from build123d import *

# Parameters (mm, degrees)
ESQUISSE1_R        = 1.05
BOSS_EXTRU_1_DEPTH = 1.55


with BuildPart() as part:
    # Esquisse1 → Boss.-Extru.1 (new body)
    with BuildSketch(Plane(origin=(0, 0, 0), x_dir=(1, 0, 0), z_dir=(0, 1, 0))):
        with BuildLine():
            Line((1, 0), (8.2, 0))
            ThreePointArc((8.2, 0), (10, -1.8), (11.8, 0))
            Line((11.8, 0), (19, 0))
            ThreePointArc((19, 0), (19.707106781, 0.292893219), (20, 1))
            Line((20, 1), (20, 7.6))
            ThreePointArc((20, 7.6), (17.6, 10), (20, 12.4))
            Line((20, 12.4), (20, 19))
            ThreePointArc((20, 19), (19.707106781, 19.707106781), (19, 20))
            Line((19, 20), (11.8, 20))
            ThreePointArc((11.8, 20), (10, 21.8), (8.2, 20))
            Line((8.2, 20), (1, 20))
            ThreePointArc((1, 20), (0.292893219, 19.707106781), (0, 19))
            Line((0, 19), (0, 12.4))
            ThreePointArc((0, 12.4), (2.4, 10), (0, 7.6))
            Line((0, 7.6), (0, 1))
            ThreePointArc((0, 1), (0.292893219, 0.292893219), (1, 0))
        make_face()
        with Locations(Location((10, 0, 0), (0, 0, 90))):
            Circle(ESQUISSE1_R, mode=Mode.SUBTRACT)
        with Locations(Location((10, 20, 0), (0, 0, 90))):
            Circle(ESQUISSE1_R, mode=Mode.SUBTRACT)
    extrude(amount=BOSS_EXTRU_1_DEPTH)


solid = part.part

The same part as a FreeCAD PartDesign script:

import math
import FreeCAD as App
import Part
import Sketcher
Q = App.Units.Quantity

doc = App.newDocument("Part")
body = doc.addObject("PartDesign::Body", "Body")

# Sketch on XZ plane
sketch1 = body.newObject("Sketcher::SketchObject", "Sketch")
sketch1.AttachmentSupport = (doc.getObject("XZ_Plane"), [""])
sketch1.MapMode = "FlatFace"
sketch1.addGeometry([
    Part.LineSegment(App.Vector(1, 0, 0), App.Vector(8.2, 0, 0)),  # 0
    Part.ArcOfCircle(Part.Circle(App.Vector(10, 0, 0), App.Vector(0, 0, 1), 1.8), math.radians(0), math.radians(180)),  # 1
    Part.LineSegment(App.Vector(11.8, 0, 0), App.Vector(19, 0, 0)),  # 2
    Part.ArcOfCircle(Part.Circle(App.Vector(19, -1, 0), App.Vector(0, 0, 1), 1), math.radians(0), math.radians(90)),  # 3
    Part.LineSegment(App.Vector(20, -1, 0), App.Vector(20, -7.6, 0)),  # 4
    Part.ArcOfCircle(Part.Circle(App.Vector(20, -10, 0), App.Vector(0, 0, 1), 2.4), math.radians(90), math.radians(270)),  # 5
    Part.LineSegment(App.Vector(20, -12.4, 0), App.Vector(20, -19, 0)),  # 6
    Part.ArcOfCircle(Part.Circle(App.Vector(19, -19, 0), App.Vector(0, 0, 1), 1), math.radians(-90), math.radians(0)),  # 7
    Part.LineSegment(App.Vector(19, -20, 0), App.Vector(11.8, -20, 0)),  # 8
    Part.ArcOfCircle(Part.Circle(App.Vector(10, -20, 0), App.Vector(0, 0, 1), 1.8), math.radians(180), math.radians(360)),  # 9
    Part.LineSegment(App.Vector(8.2, -20, 0), App.Vector(1, -20, 0)),  # 10
    Part.ArcOfCircle(Part.Circle(App.Vector(1, -19, 0), App.Vector(0, 0, 1), 1), math.radians(-180), math.radians(-90)),  # 11
    Part.LineSegment(App.Vector(0, -19, 0), App.Vector(0, -12.4, 0)),  # 12
    Part.ArcOfCircle(Part.Circle(App.Vector(0, -10, 0), App.Vector(0, 0, 1), 2.4), math.radians(-90), math.radians(90)),  # 13
    Part.LineSegment(App.Vector(0, -7.6, 0), App.Vector(0, -1, 0)),  # 14
    Part.ArcOfCircle(Part.Circle(App.Vector(1, -1, 0), App.Vector(0, 0, 1), 1), math.radians(90), math.radians(180)),  # 15
    Part.Circle(App.Vector(10, 0, 0), App.Vector(0, 0, 1), 1.1),  # 16
    Part.Circle(App.Vector(10, -20, 0), App.Vector(0, 0, 1), 1.1),  # 17
], False)
sketch1.addConstraint([
    Sketcher.Constraint("Coincident", 0, 2, 1, 2),
    Sketcher.Constraint("Coincident", 1, 1, 2, 1),
    Sketcher.Constraint("Tangent", 2, 2, 3, 2),
    Sketcher.Constraint("Tangent", 3, 1, 4, 1),
    Sketcher.Constraint("Coincident", 4, 2, 5, 1),
    Sketcher.Constraint("Coincident", 5, 2, 6, 1),
    Sketcher.Constraint("Tangent", 6, 2, 7, 2),
    Sketcher.Constraint("Tangent", 7, 1, 8, 1),
    Sketcher.Constraint("Coincident", 8, 2, 9, 2),
    Sketcher.Constraint("Coincident", 9, 1, 10, 1),
    Sketcher.Constraint("Tangent", 10, 2, 11, 2),
    Sketcher.Constraint("Tangent", 11, 1, 12, 1),
    Sketcher.Constraint("Coincident", 12, 2, 13, 1),
    Sketcher.Constraint("Coincident", 13, 2, 14, 1),
    Sketcher.Constraint("Tangent", 14, 2, 15, 2),
    Sketcher.Constraint("Tangent", 15, 1, 0, 1),
    Sketcher.Constraint("Horizontal", 0),
    Sketcher.Constraint("Horizontal", 2),
    Sketcher.Constraint("Vertical", 4),
    Sketcher.Constraint("Vertical", 6),
    Sketcher.Constraint("Horizontal", 8),
    Sketcher.Constraint("Horizontal", 10),
    Sketcher.Constraint("Vertical", 12),
    Sketcher.Constraint("Vertical", 14),
    Sketcher.Constraint("Coincident", 16, 3, 1, 3),
    Sketcher.Constraint("Coincident", 17, 3, 9, 3),
    Sketcher.Constraint("Equal", 3, 7),
    Sketcher.Constraint("Equal", 1, 9),
    Sketcher.Constraint("Equal", 7, 11),
    Sketcher.Constraint("Equal", 5, 13),
    Sketcher.Constraint("Equal", 11, 15),
    Sketcher.Constraint("Equal", 16, 17),
    Sketcher.Constraint("PointOnObject", 1, 3, -1),
    Sketcher.Constraint("PointOnObject", 13, 3, -2),
    Sketcher.Constraint("PointOnObject", 0, 2, -1),
    Sketcher.Constraint("PointOnObject", 1, 1, -1),
    Sketcher.Constraint("PointOnObject", 11, 1, -2),
    Sketcher.Constraint("PointOnObject", 13, 2, -2),
    Sketcher.Constraint("Horizontal", 7, 3, 11, 3),
    Sketcher.Constraint("Horizontal", 5, 3, 13, 3),
    Sketcher.Constraint("Horizontal", 17, 3, 7, 1),
    Sketcher.Constraint("Vertical", 3, 3, 7, 3),
    Sketcher.Constraint("Vertical", 1, 3, 9, 3),
    Sketcher.Constraint("Vertical", 5, 3, 3, 1),
    Sketcher.Constraint("Equal", 0, 2),
    Sketcher.Constraint("Equal", 4, 6),
    Sketcher.Constraint("Radius", 3, Q("1 mm")),
    Sketcher.Constraint("Diameter", 16, Q("2.1 mm")),
    Sketcher.Constraint("Radius", 1, Q("1.8 mm")),
    Sketcher.Constraint("Radius", 5, Q("2.4 mm")),
    Sketcher.Constraint("DistanceX", 0, 1, 0, 2, Q("7.2 mm")),
    Sketcher.Constraint("DistanceY", 4, 2, 4, 1, Q("6.6 mm")),
])
pad1 = body.newObject("PartDesign::Pad", "Pad")
pad1.Profile = sketch1
pad1.Length = 1.55
pad1.Reversed = True

doc.recompute()
